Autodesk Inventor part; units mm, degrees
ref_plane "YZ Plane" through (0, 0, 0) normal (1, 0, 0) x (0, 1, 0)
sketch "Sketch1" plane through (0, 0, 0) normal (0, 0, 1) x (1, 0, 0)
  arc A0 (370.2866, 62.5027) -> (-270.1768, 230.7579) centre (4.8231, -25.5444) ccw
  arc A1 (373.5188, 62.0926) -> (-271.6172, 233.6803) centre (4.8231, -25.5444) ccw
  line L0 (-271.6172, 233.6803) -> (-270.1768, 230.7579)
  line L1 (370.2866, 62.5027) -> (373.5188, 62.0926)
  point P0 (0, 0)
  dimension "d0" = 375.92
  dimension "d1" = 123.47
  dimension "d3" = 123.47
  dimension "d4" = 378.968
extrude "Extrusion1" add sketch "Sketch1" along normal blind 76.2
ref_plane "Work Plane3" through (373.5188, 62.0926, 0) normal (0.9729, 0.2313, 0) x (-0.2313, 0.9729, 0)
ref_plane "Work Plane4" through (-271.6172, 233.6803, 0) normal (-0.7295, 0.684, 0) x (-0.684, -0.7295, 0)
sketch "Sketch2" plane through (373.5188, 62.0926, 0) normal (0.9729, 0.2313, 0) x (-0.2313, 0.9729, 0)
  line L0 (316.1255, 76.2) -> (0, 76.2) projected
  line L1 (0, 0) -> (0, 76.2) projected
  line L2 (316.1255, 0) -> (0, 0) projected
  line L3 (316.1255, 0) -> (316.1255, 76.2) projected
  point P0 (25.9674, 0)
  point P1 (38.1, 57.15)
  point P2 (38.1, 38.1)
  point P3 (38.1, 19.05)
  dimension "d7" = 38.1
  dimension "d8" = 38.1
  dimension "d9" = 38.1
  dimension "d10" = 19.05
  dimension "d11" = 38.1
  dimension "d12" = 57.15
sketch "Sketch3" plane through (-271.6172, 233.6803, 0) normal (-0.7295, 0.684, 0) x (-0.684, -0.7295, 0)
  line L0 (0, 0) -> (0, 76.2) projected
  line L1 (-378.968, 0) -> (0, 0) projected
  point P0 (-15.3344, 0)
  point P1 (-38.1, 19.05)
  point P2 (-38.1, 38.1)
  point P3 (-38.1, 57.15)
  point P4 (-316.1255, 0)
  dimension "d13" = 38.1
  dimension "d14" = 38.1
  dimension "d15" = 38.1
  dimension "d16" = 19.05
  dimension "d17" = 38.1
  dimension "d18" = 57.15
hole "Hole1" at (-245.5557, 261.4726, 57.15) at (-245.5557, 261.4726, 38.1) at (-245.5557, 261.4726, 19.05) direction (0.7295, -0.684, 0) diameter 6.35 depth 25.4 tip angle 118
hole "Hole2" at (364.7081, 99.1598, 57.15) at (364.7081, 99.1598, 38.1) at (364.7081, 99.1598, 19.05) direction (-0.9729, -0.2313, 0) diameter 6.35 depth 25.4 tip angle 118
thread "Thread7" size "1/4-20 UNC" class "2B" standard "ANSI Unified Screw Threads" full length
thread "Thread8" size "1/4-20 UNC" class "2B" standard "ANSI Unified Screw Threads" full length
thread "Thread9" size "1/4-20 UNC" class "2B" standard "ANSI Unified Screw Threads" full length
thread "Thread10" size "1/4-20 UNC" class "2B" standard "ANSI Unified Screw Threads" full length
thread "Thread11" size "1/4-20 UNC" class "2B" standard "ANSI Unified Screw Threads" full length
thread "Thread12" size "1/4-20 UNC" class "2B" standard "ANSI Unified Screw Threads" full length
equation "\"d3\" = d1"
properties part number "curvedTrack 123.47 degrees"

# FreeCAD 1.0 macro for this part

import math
import FreeCAD as App
import Part
import Sketcher

V = App.Vector
Q = App.Units.Quantity

doc = App.newDocument("Part")
body = doc.addObject("PartDesign::Body", "Body")

# Sketch on XY plane
sketch1 = body.newObject("Sketcher::SketchObject", "Sketch")
sketch1.AttachmentSupport = (doc.getObject("XY_Plane"), [""])
sketch1.MapMode = "FlatFace"
sketch1.addGeometry(Part.ArcOfCircle(Part.Circle(V(4.8231, -25.5444, 0), V(0, 0, 1), 375.92002), math.radians(13.54551), math.radians(137.015523)), False)
sketch1.addGeometry(Part.LineSegment(V(370.2866, 62.5027, 0), V(373.5188, 62.0926, 0)), False)
sketch1.addGeometry(Part.ArcOfCircle(Part.Circle(V(4.8231, -25.5444, 0), V(0, 0, 1), 378.968024), math.radians(13.370776), math.radians(136.840781)), False)
sketch1.addGeometry(Part.LineSegment(V(-271.6172, 233.6803, 0), V(-270.1768, 230.7579, 0)), False)
sketch1.addConstraint(Sketcher.Constraint("Coincident", 0, 1, 1, 1))
sketch1.addConstraint(Sketcher.Constraint("Coincident", 1, 2, 2, 1))
sketch1.addConstraint(Sketcher.Constraint("Coincident", 2, 2, 3, 1))
sketch1.addConstraint(Sketcher.Constraint("Coincident", 3, 2, 0, 2))
sketch1.addConstraint(Sketcher.Constraint("Coincident", 2, 3, 0, 3))
sketch1.addConstraint(Sketcher.Constraint("Equal", 1, 3))
sketch1.addConstraint(Sketcher.Constraint("Radius", 0, Q("14.8 in")))
sketch1.addConstraint(Sketcher.Constraint("Radius", 2, Q("14.92 in")))
sketch1.addConstraint(Sketcher.Constraint("Angle", 1, Q("-7.231 deg")))
sketch1.addConstraint(Sketcher.Constraint("DistanceY", -1, 1, 1, 2, Q("2.4446 in")))
sketch1.addConstraint(Sketcher.Constraint("DistanceX", 2, 2, -1, 1, Q("10.6936 in")))
sketch1.addConstraint(Sketcher.Constraint("DistanceX", 3, 2, 0, 1, Q("25.2151 in")))
sketch1.addConstraint(Sketcher.Constraint("DistanceX", -1, 1, 0, 3, 4.823))
pad1 = body.newObject("PartDesign::Pad", "Pad")
pad1.Profile = sketch1
pad1.Length = Q("3 in")

# Sketch on an angled plane
sketch2 = body.newObject("Sketcher::SketchObject", "Sketch001")
sketch2.Placement = App.Placement(V(-261.139658, 244.851989, 0), App.Rotation(V(-0.683991023, -0.729490426, 0), V(0, 0, 1.000000001), V(-0.729490426, 0.683991023, 0), "ZXY"))
sketch2.addGeometry(Part.Circle(V(-22.783864, 57.15, 0), V(0, 0, 1), 3.175), False)
sketch2.addGeometry(Part.Circle(V(-22.783864, 38.1, 0), V(0, 0, 1), 3.175), False)
sketch2.addGeometry(Part.Circle(V(-22.783864, 19.05, 0), V(0, 0, 1), 3.175), False)
sketch2.addConstraint(Sketcher.Constraint("Equal", 0, 1))
sketch2.addConstraint(Sketcher.Constraint("Equal", 1, 2))
sketch2.addConstraint(Sketcher.Constraint("Vertical", 0, 3, 1, 3))
sketch2.addConstraint(Sketcher.Constraint("Vertical", 1, 3, 2, 3))
sketch2.addConstraint(Sketcher.Constraint("Diameter", 0, Q("0.25 in")))
sketch2.addConstraint(Sketcher.Constraint("DistanceY", -1, 1, 1, 3, Q("1.5 in")))
sketch2.addConstraint(Sketcher.Constraint("DistanceY", 2, 3, 0, 3, Q("1.5 in")))
sketch2.addConstraint(Sketcher.Constraint("DistanceY", -1, 1, 0, 3, Q("2.25 in")))
sketch2.addConstraint(Sketcher.Constraint("DistanceX", 0, 3, -1, 1, Q("0.897 in")))
doc.recompute()
hole = body.newObject("PartDesign::Hole", "Hole")
hole.Profile = sketch2
hole.ThreadType = "None"
hole.Diameter = Q("0.25 in")
hole.DepthType = "Dimension"
hole.Depth = Q("1 in")
hole.DrillPoint = "Angled"
hole.DrillPointAngle = 118

# Sketch on an angled plane
sketch3 = body.newObject("Sketcher::SketchObject", "Sketch002")
sketch3.Placement = App.Placement(V(367.510339, 87.372948, 0), App.Rotation(V(-0.231296056, 0.972883412, 0), V(0, 0, 0.999999999), V(0.972883412, 0.231296056, 0), "ZXY"))
sketch3.addGeometry(Part.Circle(V(12.115379, 57.15, 0), V(0, 0, 1), 3.175), False)
sketch3.addGeometry(Part.Circle(V(12.115379, 38.1, 0), V(0, 0, 1), 3.175), False)
sketch3.addGeometry(Part.Circle(V(12.115379, 19.05, 0), V(0, 0, 1), 3.175), False)
sketch3.addConstraint(Sketcher.Constraint("Equal", 0, 1))
sketch3.addConstraint(Sketcher.Constraint("Equal", 1, 2))
sketch3.addConstraint(Sketcher.Constraint("Vertical", 0, 3, 1, 3))
sketch3.addConstraint(Sketcher.Constraint("Vertical", 1, 3, 2, 3))
sketch3.addConstraint(Sketcher.Constraint("Diameter", 0, Q("0.25 in")))
sketch3.addConstraint(Sketcher.Constraint("DistanceY", -1, 1, 1, 3, Q("1.5 in")))
sketch3.addConstraint(Sketcher.Constraint("DistanceY", 2, 3, 0, 3, Q("1.5 in")))
sketch3.addConstraint(Sketcher.Constraint("DistanceY", -1, 1, 0, 3, Q("2.25 in")))
sketch3.addConstraint(Sketcher.Constraint("DistanceX", -1, 1, 0, 3, 12.1154))
doc.recompute()
hole2 = body.newObject("PartDesign::Hole", "Hole001")
hole2.Profile = sketch3
hole2.ThreadType = "None"
hole2.Diameter = Q("0.25 in")
hole2.DepthType = "Dimension"
hole2.Depth = Q("1 in")
hole2.DrillPoint = "Angled"
hole2.DrillPointAngle = 118

doc.recompute()
